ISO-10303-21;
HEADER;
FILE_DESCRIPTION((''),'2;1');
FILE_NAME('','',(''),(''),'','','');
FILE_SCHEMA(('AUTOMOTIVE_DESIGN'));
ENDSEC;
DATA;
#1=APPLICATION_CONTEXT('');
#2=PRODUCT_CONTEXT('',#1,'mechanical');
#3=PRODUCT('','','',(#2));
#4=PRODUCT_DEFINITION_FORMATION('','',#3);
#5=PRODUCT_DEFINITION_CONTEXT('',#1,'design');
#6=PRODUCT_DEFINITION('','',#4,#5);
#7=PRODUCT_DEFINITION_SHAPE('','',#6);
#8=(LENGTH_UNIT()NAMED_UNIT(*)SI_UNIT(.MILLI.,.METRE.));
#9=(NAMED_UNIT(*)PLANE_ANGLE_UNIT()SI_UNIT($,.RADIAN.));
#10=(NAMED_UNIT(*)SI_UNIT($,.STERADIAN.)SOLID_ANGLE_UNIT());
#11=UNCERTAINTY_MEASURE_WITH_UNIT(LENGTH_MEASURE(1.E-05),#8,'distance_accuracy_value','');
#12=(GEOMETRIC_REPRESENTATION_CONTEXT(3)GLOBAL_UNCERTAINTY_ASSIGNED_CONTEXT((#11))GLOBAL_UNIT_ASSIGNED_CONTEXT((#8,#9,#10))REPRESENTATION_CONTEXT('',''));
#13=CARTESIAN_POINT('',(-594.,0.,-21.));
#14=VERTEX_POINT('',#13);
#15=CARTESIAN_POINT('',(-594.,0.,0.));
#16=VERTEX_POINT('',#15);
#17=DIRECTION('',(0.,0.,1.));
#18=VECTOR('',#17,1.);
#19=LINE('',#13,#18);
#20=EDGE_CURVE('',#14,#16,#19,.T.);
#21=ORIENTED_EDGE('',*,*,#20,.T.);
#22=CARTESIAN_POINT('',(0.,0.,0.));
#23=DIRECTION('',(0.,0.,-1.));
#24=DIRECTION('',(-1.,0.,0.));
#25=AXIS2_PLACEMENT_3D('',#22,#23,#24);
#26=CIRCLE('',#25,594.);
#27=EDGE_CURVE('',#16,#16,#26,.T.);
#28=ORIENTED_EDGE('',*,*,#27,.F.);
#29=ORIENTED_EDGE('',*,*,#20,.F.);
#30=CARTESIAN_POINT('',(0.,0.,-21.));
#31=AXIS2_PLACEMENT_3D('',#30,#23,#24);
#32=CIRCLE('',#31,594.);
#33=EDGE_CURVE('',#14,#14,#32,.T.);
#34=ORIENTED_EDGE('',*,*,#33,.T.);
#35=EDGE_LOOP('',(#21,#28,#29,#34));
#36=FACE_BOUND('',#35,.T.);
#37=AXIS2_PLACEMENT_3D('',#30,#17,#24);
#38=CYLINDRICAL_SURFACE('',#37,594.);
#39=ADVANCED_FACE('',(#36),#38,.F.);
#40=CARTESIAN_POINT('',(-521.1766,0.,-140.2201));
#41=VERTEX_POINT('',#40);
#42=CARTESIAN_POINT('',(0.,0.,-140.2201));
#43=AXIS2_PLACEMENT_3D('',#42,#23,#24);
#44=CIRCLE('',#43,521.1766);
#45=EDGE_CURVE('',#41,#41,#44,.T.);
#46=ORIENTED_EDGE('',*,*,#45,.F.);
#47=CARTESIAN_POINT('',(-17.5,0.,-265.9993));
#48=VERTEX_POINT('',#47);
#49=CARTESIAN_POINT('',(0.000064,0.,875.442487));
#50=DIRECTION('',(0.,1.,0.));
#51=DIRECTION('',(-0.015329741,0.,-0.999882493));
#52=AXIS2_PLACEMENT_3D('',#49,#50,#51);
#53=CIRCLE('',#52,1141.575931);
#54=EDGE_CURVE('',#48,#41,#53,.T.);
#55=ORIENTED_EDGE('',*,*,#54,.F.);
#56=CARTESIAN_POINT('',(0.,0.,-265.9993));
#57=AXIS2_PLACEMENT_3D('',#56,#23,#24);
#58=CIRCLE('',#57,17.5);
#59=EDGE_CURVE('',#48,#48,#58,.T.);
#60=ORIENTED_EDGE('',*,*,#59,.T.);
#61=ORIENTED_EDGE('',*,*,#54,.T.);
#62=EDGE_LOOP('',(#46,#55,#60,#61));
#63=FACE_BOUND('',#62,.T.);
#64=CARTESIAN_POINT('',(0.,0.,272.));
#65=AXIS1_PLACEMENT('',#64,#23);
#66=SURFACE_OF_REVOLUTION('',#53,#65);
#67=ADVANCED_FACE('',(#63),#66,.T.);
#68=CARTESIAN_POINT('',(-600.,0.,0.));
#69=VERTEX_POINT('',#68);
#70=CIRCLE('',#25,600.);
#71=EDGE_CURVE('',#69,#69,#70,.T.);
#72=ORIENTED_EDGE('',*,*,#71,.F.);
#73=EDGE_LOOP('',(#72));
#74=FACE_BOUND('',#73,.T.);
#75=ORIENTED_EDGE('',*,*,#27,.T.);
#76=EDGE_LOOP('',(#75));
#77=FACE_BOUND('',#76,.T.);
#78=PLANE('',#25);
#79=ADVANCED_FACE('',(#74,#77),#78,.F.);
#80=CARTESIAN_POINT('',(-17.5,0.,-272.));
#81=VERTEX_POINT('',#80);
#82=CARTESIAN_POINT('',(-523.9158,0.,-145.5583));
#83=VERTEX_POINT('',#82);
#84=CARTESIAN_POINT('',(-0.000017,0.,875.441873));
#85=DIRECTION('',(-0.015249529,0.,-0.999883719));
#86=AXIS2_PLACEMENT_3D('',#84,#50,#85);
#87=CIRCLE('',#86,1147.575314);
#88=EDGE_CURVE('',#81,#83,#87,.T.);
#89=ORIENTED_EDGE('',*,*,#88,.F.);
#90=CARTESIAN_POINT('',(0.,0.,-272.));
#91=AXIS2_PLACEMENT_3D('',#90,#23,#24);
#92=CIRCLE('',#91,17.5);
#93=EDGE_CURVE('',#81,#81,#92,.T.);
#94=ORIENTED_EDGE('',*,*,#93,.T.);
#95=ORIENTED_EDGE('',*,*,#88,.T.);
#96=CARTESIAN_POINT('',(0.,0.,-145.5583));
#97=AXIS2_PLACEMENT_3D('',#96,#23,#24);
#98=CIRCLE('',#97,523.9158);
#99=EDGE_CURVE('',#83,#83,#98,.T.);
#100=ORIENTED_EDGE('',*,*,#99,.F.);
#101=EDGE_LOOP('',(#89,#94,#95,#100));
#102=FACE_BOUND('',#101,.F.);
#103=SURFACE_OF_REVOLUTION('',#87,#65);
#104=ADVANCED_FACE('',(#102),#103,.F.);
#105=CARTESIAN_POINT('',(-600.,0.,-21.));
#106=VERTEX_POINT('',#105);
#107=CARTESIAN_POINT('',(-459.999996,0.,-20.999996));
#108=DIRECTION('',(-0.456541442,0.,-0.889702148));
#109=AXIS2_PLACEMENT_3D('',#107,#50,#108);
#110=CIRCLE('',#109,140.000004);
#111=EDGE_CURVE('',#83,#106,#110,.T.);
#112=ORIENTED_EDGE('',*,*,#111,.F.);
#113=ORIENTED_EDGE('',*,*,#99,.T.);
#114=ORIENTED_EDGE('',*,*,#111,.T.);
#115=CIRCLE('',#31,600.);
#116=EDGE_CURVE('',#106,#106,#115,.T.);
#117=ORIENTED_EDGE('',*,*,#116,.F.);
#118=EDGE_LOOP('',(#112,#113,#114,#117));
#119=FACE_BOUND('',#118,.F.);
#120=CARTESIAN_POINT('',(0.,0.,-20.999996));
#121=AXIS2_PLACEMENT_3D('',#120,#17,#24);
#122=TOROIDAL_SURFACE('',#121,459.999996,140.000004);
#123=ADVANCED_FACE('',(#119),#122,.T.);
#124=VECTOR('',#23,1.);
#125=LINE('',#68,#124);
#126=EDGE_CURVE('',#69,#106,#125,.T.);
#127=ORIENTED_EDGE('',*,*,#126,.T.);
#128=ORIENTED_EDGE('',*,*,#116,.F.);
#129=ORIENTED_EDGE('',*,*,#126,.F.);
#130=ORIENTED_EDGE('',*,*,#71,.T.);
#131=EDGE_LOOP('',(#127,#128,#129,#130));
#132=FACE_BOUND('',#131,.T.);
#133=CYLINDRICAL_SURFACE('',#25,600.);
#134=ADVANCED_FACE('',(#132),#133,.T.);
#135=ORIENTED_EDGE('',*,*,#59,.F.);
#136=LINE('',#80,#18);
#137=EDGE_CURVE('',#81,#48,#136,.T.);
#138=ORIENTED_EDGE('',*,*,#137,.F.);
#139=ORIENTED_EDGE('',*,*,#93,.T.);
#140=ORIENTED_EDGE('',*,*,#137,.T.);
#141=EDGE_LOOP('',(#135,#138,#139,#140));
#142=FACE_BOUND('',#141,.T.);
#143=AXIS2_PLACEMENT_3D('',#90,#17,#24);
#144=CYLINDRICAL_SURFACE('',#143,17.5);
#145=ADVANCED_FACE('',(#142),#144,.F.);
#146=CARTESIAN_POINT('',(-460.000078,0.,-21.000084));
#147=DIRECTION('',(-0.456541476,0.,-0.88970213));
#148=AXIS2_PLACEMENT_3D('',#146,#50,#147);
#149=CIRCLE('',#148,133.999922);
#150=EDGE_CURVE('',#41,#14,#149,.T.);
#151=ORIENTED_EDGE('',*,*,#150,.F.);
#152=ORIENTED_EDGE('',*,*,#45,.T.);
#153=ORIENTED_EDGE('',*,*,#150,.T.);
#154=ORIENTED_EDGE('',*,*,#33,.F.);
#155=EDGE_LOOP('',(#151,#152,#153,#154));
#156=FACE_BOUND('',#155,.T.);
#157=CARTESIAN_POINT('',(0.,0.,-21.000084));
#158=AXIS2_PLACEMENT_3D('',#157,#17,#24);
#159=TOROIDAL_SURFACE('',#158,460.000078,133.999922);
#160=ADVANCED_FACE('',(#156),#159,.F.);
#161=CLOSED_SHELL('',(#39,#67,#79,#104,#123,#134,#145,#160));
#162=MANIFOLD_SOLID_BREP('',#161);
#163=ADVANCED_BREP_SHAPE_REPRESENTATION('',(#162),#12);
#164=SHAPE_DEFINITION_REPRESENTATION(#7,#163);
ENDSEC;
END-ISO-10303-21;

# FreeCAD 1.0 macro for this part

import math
import FreeCAD as App
import Part
import Sketcher

V = App.Vector
Q = App.Units.Quantity

doc = App.newDocument("Part")
body = doc.addObject("PartDesign::Body", "Body")

sketch1 = doc.addObject("Sketcher::SketchObject", "Sketch")
body.addObject(sketch1)
sketch1.AttachmentSupport = (doc.XZ_Plane, [""])
sketch1.MapMode = "FlatFace"
sketch1.addGeometry([
    Part.LineSegment(V(-600, -21, 0), V(-600, 0, 0)),
    Part.LineSegment(V(-600, 0, 0), V(-594, 0, 0)),
    Part.LineSegment(V(-594, 0, 0), V(-594, -21, 0)),
    Part.ArcOfCircle(Part.Circle(V(-460, -21, 0), V(0, 0, 1), 134), math.radians(180), math.radians(243)),
    Part.ArcOfCircle(Part.Circle(V(0, 875, 0), V(0, 0, 1), 1142), math.radians(-117), math.radians(-91)),
    Part.LineSegment(V(-18, -266, 0), V(-18, -272, 0)),
    Part.ArcOfCircle(Part.Circle(V(0, 875, 0), V(0, 0, 1), 1148), math.radians(-117), math.radians(-91)),
    Part.ArcOfCircle(Part.Circle(V(-460, -21, 0), V(0, 0, 1), 140), math.radians(180), math.radians(243)),
], False)
sketch1.addConstraint([
    Sketcher.Constraint("Coincident", 0, 2, 1, 1),
    Sketcher.Constraint("Coincident", 1, 2, 2, 1),
    Sketcher.Constraint("Tangent", 2, 2, 3, 1),
    Sketcher.Constraint("Tangent", 3, 2, 4, 1),
    Sketcher.Constraint("Coincident", 4, 2, 5, 1),
    Sketcher.Constraint("Coincident", 5, 2, 6, 2),
    Sketcher.Constraint("Tangent", 6, 1, 7, 2),
    Sketcher.Constraint("Tangent", 7, 1, 0, 1),
    Sketcher.Constraint("Vertical", 0),
    Sketcher.Constraint("Horizontal", 1),
    Sketcher.Constraint("Vertical", 2),
    Sketcher.Constraint("Vertical", 5),
    Sketcher.Constraint("Coincident", 6, 3, 4, 3),
    Sketcher.Constraint("Coincident", 7, 3, 3, 3),
    Sketcher.Constraint("PointOnObject", 4, 3, -2),
    Sketcher.Constraint("PointOnObject", 0, 2, -1),
    Sketcher.Constraint("Radius", 7, Q("140 mm")),
    Sketcher.Constraint("DistanceX", 1, 1, 1, 2, Q("6 mm")),
    Sketcher.Constraint("DistanceY", 0, 1, 0, 2, Q("21 mm")),
    Sketcher.Constraint("DistanceY", 5, 2, -1, 1, Q("272 mm")),
    Sketcher.Constraint("Radius", 6, Q("1147.5754 mm")),
    Sketcher.Constraint("DistanceX", 3, 3, -1, 1, Q("460 mm")),
])
revolution = doc.addObject("PartDesign::Revolution", "Revolution")
body.addObject(revolution)
revolution.Profile = sketch1
revolution.ReferenceAxis = (sketch1, ["V_Axis"])
revolution.Angle = 360

doc.recompute()
